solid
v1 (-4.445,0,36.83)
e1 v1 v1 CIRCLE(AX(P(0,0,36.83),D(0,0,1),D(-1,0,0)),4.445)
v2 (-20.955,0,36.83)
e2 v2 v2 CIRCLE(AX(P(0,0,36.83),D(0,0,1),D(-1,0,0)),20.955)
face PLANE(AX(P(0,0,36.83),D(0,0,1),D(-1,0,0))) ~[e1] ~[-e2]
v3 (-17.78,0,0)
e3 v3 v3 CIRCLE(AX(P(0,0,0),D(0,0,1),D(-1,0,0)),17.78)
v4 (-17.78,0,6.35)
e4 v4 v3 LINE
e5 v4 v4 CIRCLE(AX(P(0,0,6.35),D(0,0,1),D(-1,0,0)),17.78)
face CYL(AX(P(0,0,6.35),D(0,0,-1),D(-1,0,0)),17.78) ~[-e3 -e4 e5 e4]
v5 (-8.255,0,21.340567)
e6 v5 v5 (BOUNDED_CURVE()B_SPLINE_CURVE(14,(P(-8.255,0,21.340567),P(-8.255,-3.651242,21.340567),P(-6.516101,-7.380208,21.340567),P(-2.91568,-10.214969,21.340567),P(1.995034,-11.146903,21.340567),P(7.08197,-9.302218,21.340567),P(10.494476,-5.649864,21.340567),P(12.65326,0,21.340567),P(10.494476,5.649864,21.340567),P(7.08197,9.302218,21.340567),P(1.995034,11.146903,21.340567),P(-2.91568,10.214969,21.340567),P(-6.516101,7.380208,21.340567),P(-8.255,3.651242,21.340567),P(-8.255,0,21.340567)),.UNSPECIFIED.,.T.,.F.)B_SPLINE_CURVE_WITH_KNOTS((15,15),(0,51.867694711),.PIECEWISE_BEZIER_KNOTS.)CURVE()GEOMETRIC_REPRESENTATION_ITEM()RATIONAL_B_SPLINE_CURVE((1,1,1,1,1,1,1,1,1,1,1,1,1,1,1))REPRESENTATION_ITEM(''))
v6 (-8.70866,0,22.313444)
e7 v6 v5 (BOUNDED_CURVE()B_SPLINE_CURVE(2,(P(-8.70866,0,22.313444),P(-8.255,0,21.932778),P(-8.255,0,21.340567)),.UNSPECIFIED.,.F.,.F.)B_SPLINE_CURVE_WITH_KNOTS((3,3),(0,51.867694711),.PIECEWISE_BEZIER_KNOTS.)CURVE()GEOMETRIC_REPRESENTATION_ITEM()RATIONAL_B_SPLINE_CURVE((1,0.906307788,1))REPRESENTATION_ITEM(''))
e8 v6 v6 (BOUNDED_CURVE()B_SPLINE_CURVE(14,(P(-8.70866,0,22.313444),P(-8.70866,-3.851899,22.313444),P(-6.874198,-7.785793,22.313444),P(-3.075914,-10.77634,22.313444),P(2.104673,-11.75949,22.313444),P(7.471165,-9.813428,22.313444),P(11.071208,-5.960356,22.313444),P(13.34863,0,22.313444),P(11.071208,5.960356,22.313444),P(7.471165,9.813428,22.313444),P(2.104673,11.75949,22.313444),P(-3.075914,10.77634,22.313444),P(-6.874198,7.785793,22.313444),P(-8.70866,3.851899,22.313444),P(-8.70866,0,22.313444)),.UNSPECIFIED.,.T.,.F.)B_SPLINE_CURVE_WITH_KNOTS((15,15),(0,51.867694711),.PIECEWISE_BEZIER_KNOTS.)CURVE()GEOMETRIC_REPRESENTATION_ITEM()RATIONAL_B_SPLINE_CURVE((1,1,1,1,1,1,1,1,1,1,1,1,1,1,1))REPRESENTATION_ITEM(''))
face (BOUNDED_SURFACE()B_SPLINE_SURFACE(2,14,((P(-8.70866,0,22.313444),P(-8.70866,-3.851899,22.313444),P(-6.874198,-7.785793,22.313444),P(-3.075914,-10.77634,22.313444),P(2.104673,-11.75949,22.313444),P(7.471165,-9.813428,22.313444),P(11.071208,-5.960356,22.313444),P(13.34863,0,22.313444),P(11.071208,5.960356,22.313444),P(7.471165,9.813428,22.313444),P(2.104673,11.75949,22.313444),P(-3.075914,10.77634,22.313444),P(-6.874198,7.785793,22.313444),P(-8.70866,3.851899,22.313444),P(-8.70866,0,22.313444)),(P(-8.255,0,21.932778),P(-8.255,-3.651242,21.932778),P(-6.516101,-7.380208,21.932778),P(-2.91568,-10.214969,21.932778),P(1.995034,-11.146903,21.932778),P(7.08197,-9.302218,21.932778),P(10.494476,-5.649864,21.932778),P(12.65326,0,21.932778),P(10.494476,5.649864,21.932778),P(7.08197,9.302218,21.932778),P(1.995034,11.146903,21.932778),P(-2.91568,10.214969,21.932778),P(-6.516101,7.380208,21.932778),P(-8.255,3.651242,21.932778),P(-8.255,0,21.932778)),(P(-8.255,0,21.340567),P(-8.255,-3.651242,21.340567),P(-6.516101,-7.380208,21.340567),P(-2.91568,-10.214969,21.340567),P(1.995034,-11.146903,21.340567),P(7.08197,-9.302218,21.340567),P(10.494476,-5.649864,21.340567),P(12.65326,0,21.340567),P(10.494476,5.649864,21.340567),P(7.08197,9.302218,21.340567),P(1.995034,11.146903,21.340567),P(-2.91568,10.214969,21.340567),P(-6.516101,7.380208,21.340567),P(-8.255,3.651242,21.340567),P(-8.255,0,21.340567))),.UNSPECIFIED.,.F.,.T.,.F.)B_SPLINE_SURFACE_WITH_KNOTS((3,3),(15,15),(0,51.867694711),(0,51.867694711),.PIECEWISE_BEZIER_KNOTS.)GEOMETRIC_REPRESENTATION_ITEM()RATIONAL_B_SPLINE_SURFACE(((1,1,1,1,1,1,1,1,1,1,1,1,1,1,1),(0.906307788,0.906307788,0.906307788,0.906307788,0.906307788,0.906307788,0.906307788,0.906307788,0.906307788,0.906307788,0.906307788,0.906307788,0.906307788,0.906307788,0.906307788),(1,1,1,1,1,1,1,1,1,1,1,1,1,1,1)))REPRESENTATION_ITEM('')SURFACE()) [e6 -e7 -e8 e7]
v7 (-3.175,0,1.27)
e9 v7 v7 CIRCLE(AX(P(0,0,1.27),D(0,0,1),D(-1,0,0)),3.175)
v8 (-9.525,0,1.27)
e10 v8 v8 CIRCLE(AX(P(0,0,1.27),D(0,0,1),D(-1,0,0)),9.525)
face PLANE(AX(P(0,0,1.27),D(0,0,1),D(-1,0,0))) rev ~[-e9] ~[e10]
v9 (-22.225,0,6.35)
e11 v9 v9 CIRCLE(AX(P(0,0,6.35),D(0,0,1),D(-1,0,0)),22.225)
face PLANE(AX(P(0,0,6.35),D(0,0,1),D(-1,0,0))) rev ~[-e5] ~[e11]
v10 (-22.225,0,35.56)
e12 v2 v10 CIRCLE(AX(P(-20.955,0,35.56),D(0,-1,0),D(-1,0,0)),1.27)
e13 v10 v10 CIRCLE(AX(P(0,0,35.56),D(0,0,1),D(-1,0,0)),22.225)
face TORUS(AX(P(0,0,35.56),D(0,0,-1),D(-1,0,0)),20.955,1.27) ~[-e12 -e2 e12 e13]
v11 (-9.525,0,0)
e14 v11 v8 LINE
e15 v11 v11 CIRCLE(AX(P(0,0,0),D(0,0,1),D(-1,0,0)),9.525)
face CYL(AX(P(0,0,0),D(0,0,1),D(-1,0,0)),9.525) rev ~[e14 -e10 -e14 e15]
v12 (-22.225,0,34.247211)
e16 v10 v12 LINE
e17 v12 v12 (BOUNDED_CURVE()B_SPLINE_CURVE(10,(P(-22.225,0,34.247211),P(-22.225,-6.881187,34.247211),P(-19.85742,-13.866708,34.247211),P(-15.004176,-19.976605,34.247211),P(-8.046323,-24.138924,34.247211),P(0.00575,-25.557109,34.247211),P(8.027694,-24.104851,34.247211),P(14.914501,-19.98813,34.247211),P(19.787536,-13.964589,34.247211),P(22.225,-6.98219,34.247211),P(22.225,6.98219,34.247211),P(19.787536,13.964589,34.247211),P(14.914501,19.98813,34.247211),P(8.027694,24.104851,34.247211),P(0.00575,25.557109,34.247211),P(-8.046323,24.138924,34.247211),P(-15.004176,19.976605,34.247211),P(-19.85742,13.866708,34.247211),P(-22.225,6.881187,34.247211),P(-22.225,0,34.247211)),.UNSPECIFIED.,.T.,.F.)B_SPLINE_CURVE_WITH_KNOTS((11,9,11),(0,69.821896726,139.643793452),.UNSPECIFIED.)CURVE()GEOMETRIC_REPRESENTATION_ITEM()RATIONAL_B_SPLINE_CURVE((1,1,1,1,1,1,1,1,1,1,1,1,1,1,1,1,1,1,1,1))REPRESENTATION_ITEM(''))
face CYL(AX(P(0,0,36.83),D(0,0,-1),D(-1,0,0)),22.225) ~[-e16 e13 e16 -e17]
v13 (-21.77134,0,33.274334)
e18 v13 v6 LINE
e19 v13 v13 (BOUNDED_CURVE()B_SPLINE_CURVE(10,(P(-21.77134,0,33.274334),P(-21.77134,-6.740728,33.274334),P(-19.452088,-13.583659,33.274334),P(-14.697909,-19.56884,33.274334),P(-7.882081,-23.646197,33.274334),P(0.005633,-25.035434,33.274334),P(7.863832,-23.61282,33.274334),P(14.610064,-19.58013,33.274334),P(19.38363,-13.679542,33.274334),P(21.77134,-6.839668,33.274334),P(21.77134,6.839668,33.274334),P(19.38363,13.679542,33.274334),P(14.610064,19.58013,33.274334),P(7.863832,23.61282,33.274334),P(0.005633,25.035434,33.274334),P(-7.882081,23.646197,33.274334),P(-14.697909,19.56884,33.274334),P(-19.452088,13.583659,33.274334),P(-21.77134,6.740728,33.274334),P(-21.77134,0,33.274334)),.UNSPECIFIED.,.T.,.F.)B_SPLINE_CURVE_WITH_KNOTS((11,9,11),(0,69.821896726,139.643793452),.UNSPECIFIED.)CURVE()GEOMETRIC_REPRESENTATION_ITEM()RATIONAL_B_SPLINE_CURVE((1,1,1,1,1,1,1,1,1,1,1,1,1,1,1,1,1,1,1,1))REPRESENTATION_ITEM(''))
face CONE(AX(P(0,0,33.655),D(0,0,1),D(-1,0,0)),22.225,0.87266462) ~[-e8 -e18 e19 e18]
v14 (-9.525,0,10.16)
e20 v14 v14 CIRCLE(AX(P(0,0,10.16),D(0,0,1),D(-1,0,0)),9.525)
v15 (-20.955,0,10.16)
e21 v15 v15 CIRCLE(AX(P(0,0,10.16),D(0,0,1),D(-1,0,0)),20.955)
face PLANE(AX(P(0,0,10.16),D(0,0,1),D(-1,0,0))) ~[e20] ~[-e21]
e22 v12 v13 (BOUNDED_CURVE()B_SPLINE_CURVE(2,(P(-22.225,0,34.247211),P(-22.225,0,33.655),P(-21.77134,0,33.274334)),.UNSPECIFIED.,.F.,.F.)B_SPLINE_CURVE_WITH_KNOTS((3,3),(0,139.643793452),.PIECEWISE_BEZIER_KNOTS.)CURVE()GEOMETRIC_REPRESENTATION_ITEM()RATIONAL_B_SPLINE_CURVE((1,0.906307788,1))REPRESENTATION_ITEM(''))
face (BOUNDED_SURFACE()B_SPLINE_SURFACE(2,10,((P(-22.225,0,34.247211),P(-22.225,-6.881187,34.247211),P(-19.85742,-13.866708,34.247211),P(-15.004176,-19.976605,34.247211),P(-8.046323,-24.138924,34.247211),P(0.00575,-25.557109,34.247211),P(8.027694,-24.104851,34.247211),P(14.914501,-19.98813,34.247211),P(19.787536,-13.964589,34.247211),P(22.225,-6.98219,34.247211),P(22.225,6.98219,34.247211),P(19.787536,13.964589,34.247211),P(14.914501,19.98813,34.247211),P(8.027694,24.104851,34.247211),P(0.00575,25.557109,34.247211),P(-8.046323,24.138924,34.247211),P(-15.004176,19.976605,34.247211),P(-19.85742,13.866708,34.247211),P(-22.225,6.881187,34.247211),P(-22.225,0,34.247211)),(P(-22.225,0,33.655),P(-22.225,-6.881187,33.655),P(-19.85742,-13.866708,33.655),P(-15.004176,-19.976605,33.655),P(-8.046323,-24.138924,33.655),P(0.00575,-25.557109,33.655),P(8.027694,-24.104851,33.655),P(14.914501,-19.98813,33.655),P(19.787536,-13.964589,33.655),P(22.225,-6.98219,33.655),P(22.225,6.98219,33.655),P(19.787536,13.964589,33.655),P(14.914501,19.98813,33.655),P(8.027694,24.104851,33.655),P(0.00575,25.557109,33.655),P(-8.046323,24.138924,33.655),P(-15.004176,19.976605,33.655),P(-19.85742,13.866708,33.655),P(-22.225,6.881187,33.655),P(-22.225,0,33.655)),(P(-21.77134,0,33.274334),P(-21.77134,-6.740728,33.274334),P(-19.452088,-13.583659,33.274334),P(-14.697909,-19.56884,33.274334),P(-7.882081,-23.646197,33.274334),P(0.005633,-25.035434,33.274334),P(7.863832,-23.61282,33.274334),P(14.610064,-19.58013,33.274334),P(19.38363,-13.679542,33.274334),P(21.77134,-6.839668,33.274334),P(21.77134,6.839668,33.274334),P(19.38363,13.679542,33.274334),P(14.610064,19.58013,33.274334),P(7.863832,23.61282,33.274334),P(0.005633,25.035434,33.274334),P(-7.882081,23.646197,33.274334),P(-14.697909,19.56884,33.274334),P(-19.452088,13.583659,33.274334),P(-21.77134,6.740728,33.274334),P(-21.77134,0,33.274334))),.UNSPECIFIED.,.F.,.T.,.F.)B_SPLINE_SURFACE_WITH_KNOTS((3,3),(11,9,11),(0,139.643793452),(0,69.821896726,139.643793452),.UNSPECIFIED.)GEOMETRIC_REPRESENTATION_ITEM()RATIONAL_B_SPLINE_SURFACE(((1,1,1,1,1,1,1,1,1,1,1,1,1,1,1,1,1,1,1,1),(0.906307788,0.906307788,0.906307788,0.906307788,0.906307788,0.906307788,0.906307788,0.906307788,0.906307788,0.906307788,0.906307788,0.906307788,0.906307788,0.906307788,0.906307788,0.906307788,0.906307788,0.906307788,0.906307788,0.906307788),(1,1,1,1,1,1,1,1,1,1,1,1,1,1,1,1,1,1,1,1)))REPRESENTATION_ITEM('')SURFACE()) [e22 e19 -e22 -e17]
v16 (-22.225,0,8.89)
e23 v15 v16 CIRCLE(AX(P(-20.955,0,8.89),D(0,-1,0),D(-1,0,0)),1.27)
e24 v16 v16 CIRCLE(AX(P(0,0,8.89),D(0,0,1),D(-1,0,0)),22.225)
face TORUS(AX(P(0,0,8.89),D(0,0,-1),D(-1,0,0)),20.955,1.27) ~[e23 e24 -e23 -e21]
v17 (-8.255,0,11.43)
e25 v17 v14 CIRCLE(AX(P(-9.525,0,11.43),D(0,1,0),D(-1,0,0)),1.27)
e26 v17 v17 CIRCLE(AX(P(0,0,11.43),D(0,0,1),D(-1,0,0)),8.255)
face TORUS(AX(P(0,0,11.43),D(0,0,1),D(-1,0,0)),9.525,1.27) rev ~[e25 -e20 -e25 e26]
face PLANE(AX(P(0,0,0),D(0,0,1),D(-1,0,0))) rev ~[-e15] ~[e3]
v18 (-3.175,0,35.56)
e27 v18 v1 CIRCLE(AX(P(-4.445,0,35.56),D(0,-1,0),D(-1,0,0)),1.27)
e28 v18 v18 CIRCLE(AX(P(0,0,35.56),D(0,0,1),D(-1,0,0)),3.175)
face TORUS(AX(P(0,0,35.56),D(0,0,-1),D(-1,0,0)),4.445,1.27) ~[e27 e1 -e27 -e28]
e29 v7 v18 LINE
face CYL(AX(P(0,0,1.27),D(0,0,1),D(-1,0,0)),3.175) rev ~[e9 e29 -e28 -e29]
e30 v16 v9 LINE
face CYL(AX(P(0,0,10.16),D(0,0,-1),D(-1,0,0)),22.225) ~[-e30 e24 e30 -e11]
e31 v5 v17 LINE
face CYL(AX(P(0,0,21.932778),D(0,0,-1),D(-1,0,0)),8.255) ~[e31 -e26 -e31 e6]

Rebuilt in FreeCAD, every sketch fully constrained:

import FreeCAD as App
import Part
import Sketcher

V = App.Vector
Q = App.Units.Quantity


def edges_at(feature, points):
    """Names of the edges that pass closest to the given points."""
    edges = feature.Shape.Edges
    near = lambda p: min(range(len(edges)), key=lambda i: edges[i].distToShape(Part.Vertex(*p))[0])
    return sorted({f"Edge{near(p) + 1}" for p in points})

doc = App.newDocument("Part")
body = doc.addObject("PartDesign::Body", "Body")

sketch1 = body.newObject("Sketcher::SketchObject", "Sketch")
sketch1.AttachmentSupport = (doc.getObject("XZ_Plane"), [""])
sketch1.MapMode = "FlatFace"
sketch1.addGeometry(Part.LineSegment(V(-9.5, 1.3, 0), V(-3.2, 1.3, 0)), False)
sketch1.addGeometry(Part.LineSegment(V(-3.2, 1.3, 0), V(-3.2, 36.8, 0)), False)
sketch1.addGeometry(Part.LineSegment(V(-3.2, 36.8, 0), V(-22.2, 36.8, 0)), False)
sketch1.addGeometry(Part.LineSegment(V(-22.2, 36.8, 0), V(-22.2, 33.7, 0)), False)
sketch1.addGeometry(Part.LineSegment(V(-22.2, 33.7, 0), V(-8.3, 21.9, 0)), False)
sketch1.addGeometry(Part.LineSegment(V(-8.3, 21.9, 0), V(-8.3, 10.2, 0)), False)
sketch1.addGeometry(Part.LineSegment(V(-8.3, 10.2, 0), V(-22.2, 10.2, 0)), False)
sketch1.addGeometry(Part.LineSegment(V(-22.2, 10.2, 0), V(-22.2, 6.3, 0)), False)
sketch1.addGeometry(Part.LineSegment(V(-22.2, 6.3, 0), V(-17.8, 6.3, 0)), False)
sketch1.addGeometry(Part.LineSegment(V(-17.8, 6.3, 0), V(-17.8, 0, 0)), False)
sketch1.addGeometry(Part.LineSegment(V(-17.8, 0, 0), V(-9.5, 0, 0)), False)
sketch1.addGeometry(Part.LineSegment(V(-9.5, 0, 0), V(-9.5, 1.3, 0)), False)
sketch1.addConstraint(Sketcher.Constraint("Coincident", 0, 2, 1, 1))
sketch1.addConstraint(Sketcher.Constraint("Coincident", 1, 2, 2, 1))
sketch1.addConstraint(Sketcher.Constraint("Coincident", 2, 2, 3, 1))
sketch1.addConstraint(Sketcher.Constraint("Coincident", 3, 2, 4, 1))
sketch1.addConstraint(Sketcher.Constraint("Coincident", 4, 2, 5, 1))
sketch1.addConstraint(Sketcher.Constraint("Coincident", 5, 2, 6, 1))
sketch1.addConstraint(Sketcher.Constraint("Coincident", 6, 2, 7, 1))
sketch1.addConstraint(Sketcher.Constraint("Coincident", 7, 2, 8, 1))
sketch1.addConstraint(Sketcher.Constraint("Coincident", 8, 2, 9, 1))
sketch1.addConstraint(Sketcher.Constraint("Coincident", 9, 2, 10, 1))
sketch1.addConstraint(Sketcher.Constraint("Coincident", 10, 2, 11, 1))
sketch1.addConstraint(Sketcher.Constraint("Coincident", 11, 2, 0, 1))
sketch1.addConstraint(Sketcher.Constraint("Horizontal", 0))
sketch1.addConstraint(Sketcher.Constraint("Vertical", 1))
sketch1.addConstraint(Sketcher.Constraint("Horizontal", 2))
sketch1.addConstraint(Sketcher.Constraint("Vertical", 3))
sketch1.addConstraint(Sketcher.Constraint("Vertical", 5))
sketch1.addConstraint(Sketcher.Constraint("Horizontal", 6))
sketch1.addConstraint(Sketcher.Constraint("Vertical", 7))
sketch1.addConstraint(Sketcher.Constraint("Horizontal", 8))
sketch1.addConstraint(Sketcher.Constraint("Vertical", 9))
sketch1.addConstraint(Sketcher.Constraint("Horizontal", 10))
sketch1.addConstraint(Sketcher.Constraint("Vertical", 11))
sketch1.addConstraint(Sketcher.Constraint("PointOnObject", 9, 2, -1))
sketch1.addConstraint(Sketcher.Constraint("Vertical", 3, 2, 6, 2))
sketch1.addConstraint(Sketcher.Constraint("Equal", 0, 9))
sketch1.addConstraint(Sketcher.Constraint("DistanceY", 1, 1, 1, 2, Q("1.4 in")))
sketch1.addConstraint(Sketcher.Constraint("Angle", 4, Q("-40 deg")))
sketch1.addConstraint(Sketcher.Constraint("DistanceX", 0, 1, 0, 2, Q("0.25 in")))
sketch1.addConstraint(Sketcher.Constraint("DistanceX", 2, 2, 2, 1, Q("0.75 in")))
sketch1.addConstraint(Sketcher.Constraint("DistanceX", 6, 2, 6, 1, Q("0.55 in")))
sketch1.addConstraint(Sketcher.Constraint("DistanceY", 7, 2, 7, 1, Q("0.15 in")))
sketch1.addConstraint(Sketcher.Constraint("DistanceY", 11, 1, 11, 2, Q("0.05 in")))
sketch1.addConstraint(Sketcher.Constraint("DistanceX", 8, 2, -1, 1, Q("0.7 in")))
sketch1.addConstraint(Sketcher.Constraint("DistanceX", 8, 1, 8, 2, Q("0.175 in")))
sketch1.addConstraint(Sketcher.Constraint("DistanceY", 3, 2, 3, 1, Q("0.125 in")))
revolution = body.newObject("PartDesign::Revolution", "Revolution")
revolution.Profile = sketch1
revolution.ReferenceAxis = (sketch1, ["V_Axis"])
revolution.Angle = 360
doc.recompute()

fillet = body.newObject("PartDesign::Fillet", "Fillet")
fillet.Base = (revolution, edges_at(revolution, [
    (22.225, 0, 36.83),
    (22.225, 0, 33.655),
    (8.255, 0, 21.933),
    (8.255, 0, 10.16),
    (22.225, 0, 10.16),
    (3.175, 0, 36.83),
]))
fillet.Radius = Q("0.05 in")

doc.recompute()
